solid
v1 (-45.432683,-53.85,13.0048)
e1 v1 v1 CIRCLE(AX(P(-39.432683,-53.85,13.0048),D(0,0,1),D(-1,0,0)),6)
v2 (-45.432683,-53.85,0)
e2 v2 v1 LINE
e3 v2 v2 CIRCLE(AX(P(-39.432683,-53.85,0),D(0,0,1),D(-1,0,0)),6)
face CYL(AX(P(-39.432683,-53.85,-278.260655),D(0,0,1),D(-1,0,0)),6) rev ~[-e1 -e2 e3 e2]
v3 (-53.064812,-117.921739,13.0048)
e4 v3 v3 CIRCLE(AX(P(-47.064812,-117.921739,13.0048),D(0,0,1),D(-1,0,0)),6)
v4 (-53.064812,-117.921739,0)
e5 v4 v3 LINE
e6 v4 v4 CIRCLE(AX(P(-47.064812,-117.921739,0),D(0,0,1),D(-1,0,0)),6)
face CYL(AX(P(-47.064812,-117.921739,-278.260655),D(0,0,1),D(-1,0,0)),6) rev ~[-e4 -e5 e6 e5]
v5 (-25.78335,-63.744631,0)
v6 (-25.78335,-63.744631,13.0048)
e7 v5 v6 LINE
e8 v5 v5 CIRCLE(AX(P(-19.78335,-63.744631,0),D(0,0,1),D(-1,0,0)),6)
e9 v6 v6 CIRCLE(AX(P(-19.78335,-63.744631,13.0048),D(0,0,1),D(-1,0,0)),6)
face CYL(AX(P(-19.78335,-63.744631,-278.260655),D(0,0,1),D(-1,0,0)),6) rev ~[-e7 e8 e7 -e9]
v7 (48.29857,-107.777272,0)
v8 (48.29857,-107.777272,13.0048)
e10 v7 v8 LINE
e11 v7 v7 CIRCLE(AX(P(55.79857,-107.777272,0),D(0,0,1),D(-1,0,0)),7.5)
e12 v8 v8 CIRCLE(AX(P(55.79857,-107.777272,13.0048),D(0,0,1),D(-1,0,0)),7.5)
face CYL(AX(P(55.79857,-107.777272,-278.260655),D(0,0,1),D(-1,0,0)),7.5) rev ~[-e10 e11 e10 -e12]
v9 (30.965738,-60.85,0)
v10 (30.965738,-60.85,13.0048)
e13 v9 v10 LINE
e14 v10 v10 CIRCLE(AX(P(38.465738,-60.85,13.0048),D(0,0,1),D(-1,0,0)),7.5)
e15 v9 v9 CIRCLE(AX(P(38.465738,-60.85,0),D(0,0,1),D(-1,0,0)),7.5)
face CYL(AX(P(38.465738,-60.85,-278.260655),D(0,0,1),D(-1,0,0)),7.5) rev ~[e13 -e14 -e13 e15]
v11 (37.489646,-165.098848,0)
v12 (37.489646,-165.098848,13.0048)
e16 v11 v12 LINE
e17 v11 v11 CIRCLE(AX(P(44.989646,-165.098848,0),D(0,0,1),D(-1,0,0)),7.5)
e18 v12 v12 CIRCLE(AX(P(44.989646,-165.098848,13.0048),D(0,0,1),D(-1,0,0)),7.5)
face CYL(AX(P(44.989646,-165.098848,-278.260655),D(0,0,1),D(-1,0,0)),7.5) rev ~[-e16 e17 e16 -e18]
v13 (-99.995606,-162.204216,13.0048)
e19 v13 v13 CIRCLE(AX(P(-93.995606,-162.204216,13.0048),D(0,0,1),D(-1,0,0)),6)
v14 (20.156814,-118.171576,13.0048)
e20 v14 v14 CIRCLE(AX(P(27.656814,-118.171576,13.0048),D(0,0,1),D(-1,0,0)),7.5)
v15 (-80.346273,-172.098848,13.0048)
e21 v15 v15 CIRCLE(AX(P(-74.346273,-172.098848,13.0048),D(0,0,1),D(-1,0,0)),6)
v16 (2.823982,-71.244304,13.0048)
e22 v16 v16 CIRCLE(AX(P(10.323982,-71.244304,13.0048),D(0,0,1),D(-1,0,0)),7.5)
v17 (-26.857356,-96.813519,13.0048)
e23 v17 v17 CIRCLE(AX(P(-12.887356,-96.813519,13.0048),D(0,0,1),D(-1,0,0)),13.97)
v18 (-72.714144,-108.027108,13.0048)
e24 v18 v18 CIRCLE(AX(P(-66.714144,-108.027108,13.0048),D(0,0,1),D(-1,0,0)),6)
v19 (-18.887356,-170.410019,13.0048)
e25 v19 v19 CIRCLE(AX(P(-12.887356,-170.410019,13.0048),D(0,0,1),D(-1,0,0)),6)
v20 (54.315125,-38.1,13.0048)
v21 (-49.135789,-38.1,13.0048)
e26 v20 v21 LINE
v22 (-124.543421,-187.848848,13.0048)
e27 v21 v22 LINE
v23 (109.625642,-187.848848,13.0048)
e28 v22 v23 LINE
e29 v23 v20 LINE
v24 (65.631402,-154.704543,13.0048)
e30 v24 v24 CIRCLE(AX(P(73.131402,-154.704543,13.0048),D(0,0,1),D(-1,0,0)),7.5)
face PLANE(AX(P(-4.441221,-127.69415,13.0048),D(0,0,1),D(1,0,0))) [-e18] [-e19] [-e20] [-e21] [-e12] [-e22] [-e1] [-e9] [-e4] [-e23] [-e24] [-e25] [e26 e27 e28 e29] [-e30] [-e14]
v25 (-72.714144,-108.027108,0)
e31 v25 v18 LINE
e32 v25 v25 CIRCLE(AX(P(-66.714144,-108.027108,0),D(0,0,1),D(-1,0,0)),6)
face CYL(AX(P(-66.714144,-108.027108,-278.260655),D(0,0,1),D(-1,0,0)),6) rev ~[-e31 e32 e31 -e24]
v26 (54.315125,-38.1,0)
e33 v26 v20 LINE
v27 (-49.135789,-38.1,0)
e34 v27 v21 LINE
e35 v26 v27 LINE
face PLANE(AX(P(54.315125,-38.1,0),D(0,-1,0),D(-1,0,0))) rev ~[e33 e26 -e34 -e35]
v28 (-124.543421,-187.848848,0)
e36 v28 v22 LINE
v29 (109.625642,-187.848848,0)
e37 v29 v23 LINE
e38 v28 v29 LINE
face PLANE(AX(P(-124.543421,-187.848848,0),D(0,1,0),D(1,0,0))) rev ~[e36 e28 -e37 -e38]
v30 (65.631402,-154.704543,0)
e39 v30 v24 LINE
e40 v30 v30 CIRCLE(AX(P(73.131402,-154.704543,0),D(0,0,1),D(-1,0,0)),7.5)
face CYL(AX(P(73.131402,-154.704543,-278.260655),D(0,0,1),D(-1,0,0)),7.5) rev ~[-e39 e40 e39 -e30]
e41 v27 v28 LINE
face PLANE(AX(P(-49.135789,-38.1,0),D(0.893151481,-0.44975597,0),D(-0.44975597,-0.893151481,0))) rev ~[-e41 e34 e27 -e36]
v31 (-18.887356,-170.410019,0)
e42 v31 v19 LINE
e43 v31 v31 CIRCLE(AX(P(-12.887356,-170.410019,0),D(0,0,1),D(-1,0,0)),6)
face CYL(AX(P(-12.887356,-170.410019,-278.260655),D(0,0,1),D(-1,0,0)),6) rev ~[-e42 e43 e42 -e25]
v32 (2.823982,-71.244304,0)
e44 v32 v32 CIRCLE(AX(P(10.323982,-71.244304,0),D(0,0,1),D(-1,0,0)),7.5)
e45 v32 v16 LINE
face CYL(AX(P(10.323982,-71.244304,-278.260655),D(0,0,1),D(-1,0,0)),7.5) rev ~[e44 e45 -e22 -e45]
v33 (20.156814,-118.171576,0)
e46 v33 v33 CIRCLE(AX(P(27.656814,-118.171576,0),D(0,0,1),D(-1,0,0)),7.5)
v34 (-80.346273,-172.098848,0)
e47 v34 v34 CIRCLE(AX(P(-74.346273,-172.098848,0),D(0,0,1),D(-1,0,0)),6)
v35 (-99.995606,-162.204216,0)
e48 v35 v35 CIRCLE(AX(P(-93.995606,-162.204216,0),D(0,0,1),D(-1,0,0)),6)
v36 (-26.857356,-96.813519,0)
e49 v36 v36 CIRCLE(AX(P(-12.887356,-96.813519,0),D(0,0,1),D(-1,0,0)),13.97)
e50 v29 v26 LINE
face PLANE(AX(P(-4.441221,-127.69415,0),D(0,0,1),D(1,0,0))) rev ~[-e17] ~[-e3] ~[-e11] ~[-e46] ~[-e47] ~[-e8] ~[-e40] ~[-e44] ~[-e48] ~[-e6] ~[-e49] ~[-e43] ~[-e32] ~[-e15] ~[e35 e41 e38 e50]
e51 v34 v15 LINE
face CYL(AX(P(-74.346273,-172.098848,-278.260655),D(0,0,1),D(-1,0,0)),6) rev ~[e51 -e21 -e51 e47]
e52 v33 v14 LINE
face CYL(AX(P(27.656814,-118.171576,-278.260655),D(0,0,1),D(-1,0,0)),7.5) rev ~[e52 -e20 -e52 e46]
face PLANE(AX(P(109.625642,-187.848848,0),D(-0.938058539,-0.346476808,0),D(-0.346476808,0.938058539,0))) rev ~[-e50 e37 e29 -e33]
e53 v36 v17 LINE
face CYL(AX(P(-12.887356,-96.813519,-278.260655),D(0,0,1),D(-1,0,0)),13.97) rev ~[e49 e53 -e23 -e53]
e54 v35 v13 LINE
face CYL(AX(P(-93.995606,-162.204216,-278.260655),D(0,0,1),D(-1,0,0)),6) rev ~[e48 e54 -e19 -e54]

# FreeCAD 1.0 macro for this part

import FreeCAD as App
import Part
import Sketcher
Q = App.Units.Quantity

doc = App.newDocument("Part")
body = doc.addObject("PartDesign::Body", "Body")

sketch1 = body.newObject("Sketcher::SketchObject", "Sketch")
sketch1.AttachmentSupport = (doc.getObject("XY_Plane"), [""])
sketch1.MapMode = "FlatFace"
sketch1.addGeometry([
    Part.LineSegment(App.Vector(54, -38, 0), App.Vector(-49, -38, 0)),
    Part.LineSegment(App.Vector(-49, -38, 0), App.Vector(-125, -188, 0)),
    Part.LineSegment(App.Vector(-125, -188, 0), App.Vector(110, -188, 0)),
    Part.LineSegment(App.Vector(110, -188, 0), App.Vector(54, -38, 0)),
], False)
sketch1.addConstraint([
    Sketcher.Constraint("Coincident", 0, 2, 1, 1),
    Sketcher.Constraint("Coincident", 1, 2, 2, 1),
    Sketcher.Constraint("Coincident", 2, 2, 3, 1),
    Sketcher.Constraint("Coincident", 3, 2, 0, 1),
    Sketcher.Constraint("Horizontal", 0),
    Sketcher.Constraint("Horizontal", 2),
    Sketcher.Constraint("DistanceY", 0, 2, -1, 1, Q("38.1 mm")),
    Sketcher.Constraint("DistanceX", 0, 2, 0, 1, Q("103.450913 mm")),
    Sketcher.Constraint("DistanceX", 2, 1, 2, 2, Q("234.169062 mm")),
    Sketcher.Constraint("DistanceX", 0, 2, -1, 1, Q("49.135789 mm")),
    Sketcher.Constraint("DistanceX", 1, 2, -1, 1, Q("124.543421 mm")),
    Sketcher.Constraint("Distance", 1, Q("167.663438 mm")),
])
pad1 = body.newObject("PartDesign::Pad", "Pad")
pad1.Profile = sketch1
pad1.Length = 13.0048

sketch2 = body.newObject("Sketcher::SketchObject", "Sketch001")
sketch2.AttachmentSupport = (doc.getObject("XY_Plane"), [""])
sketch2.MapMode = "FlatFace"
sketch2.addGeometry([
    Part.Circle(App.Vector(38, -61, 0), App.Vector(0, 0, 1), 8),
    Part.Circle(App.Vector(10, -71, 0), App.Vector(0, 0, 1), 8),
    Part.Circle(App.Vector(28, -118, 0), App.Vector(0, 0, 1), 8),
    Part.Circle(App.Vector(56, -108, 0), App.Vector(0, 0, 1), 8),
    Part.Circle(App.Vector(45, -165, 0), App.Vector(0, 0, 1), 8),
    Part.Circle(App.Vector(73, -155, 0), App.Vector(0, 0, 1), 8),
], False)
sketch2.addConstraint([
    Sketcher.Constraint("Equal", 0, 1),
    Sketcher.Constraint("Equal", 1, 2),
    Sketcher.Constraint("Equal", 2, 3),
    Sketcher.Constraint("Equal", 3, 4),
    Sketcher.Constraint("Equal", 4, 5),
    Sketcher.Constraint("Diameter", 0, Q("15 mm")),
    Sketcher.Constraint("DistanceY", 0, 3, -1, 1, Q("60.85 mm")),
    Sketcher.Constraint("DistanceX", -1, 1, 1, 3, Q("10.323982 mm")),
    Sketcher.Constraint("DistanceX", -1, 1, 3, 3, Q("55.79857 mm")),
    Sketcher.Constraint("DistanceY", 3, 3, -1, 1, Q("107.777272 mm")),
    Sketcher.Constraint("DistanceY", 2, 3, 1, 3, Q("46.927272 mm")),
    Sketcher.Constraint("DistanceY", 4, 3, 2, 3, Q("46.927272 mm")),
    Sketcher.Constraint("DistanceX", 0, 3, 4, 3, Q("6.523908 mm")),
    Sketcher.Constraint("DistanceY", 5, 3, 3, 3, Q("46.927272 mm")),
    Sketcher.Constraint("DistanceX", 2, 3, 5, 3, Q("45.474588 mm")),
    Sketcher.Constraint("DistanceX", 1, 3, 5, 3, Q("62.807421 mm")),
    Sketcher.Constraint("DistanceY", 5, 3, 1, 3, Q("83.460239 mm")),
    Sketcher.Constraint("DistanceX", -1, 1, 0, 3, Q("38.465738 mm")),
])
doc.recompute()
hole = body.newObject("PartDesign::Hole", "Hole")
hole.Profile = sketch2
hole.ThreadType = "None"
hole.Diameter = 15
hole.DepthType = "ThroughAll"
hole.Reversed = True

sketch3 = body.newObject("Sketcher::SketchObject", "Sketch002")
sketch3.AttachmentSupport = (doc.getObject("XY_Plane"), [""])
sketch3.MapMode = "FlatFace"
sketch3.addGeometry([
    Part.Circle(App.Vector(-20, -64, 0), App.Vector(0, 0, 1), 6),
    Part.Circle(App.Vector(-39, -54, 0), App.Vector(0, 0, 1), 6),
    Part.Circle(App.Vector(-67, -108, 0), App.Vector(0, 0, 1), 6),
    Part.Circle(App.Vector(-47, -118, 0), App.Vector(0, 0, 1), 6),
    Part.Circle(App.Vector(-74, -172, 0), App.Vector(0, 0, 1), 6),
    Part.Circle(App.Vector(-94, -162, 0), App.Vector(0, 0, 1), 6),
    Part.Circle(App.Vector(-13, -170, 0), App.Vector(0, 0, 1), 6),
], False)
sketch3.addConstraint([
    Sketcher.Constraint("Equal", 0, 1),
    Sketcher.Constraint("Equal", 1, 2),
    Sketcher.Constraint("Equal", 2, 3),
    Sketcher.Constraint("Equal", 3, 4),
    Sketcher.Constraint("Equal", 4, 5),
    Sketcher.Constraint("Equal", 5, 6),
    Sketcher.Constraint("Diameter", 0, Q("12 mm")),
    Sketcher.Constraint("DistanceY", 1, 3, -1, 1, Q("53.85 mm")),
    Sketcher.Constraint("DistanceX", 0, 3, -1, 1, Q("19.78335 mm")),
    Sketcher.Constraint("DistanceY", 0, 3, -1, 1, Q("63.744631 mm")),
    Sketcher.Constraint("DistanceY", 2, 3, -1, 1, Q("108.027108 mm")),
    Sketcher.Constraint("DistanceX", 3, 3, -1, 1, Q("47.064812 mm")),
    Sketcher.Constraint("DistanceY", 3, 3, -1, 1, Q("117.921739 mm")),
    Sketcher.Constraint("DistanceY", 6, 3, -1, 1, Q("170.410019 mm")),
    Sketcher.Constraint("DistanceX", 2, 3, 1, 3, Q("27.281462 mm")),
    Sketcher.Constraint("DistanceX", 3, 3, 1, 3, Q("7.632129 mm")),
    Sketcher.Constraint("DistanceX", 4, 3, 3, 3, Q("27.281462 mm")),
    Sketcher.Constraint("DistanceY", 4, 3, 3, 3, Q("54.177108 mm")),
    Sketcher.Constraint("DistanceY", 4, 3, 5, 3, Q("9.894631 mm")),
    Sketcher.Constraint("DistanceX", 5, 3, 2, 3, Q("27.281462 mm")),
    Sketcher.Constraint("DistanceX", 5, 3, 6, 3, Q("81.10825 mm")),
])
doc.recompute()
hole2 = body.newObject("PartDesign::Hole", "Hole001")
hole2.Profile = sketch3
hole2.ThreadType = "None"
hole2.Diameter = 12
hole2.DepthType = "ThroughAll"
hole2.Reversed = True

sketch4 = body.newObject("Sketcher::SketchObject", "Sketch003")
sketch4.AttachmentSupport = (doc.getObject("XY_Plane"), [""])
sketch4.MapMode = "FlatFace"
sketch4.addGeometry(Part.Circle(App.Vector(-13, -97, 0), App.Vector(0, 0, 1), 14), False)
sketch4.addConstraint([
    Sketcher.Constraint("Diameter", 0, Q("27.94 mm")),
    Sketcher.Constraint("DistanceY", 0, 3, -1, 1, Q("96.813519 mm")),
    Sketcher.Constraint("DistanceX", 0, 3, -1, 1, Q("12.887356 mm")),
])
doc.recompute()
hole3 = body.newObject("PartDesign::Hole", "Hole002")
hole3.Profile = sketch4
hole3.ThreadType = "None"
hole3.Diameter = 27.94
hole3.DepthType = "ThroughAll"
hole3.Reversed = True

doc.recompute()
